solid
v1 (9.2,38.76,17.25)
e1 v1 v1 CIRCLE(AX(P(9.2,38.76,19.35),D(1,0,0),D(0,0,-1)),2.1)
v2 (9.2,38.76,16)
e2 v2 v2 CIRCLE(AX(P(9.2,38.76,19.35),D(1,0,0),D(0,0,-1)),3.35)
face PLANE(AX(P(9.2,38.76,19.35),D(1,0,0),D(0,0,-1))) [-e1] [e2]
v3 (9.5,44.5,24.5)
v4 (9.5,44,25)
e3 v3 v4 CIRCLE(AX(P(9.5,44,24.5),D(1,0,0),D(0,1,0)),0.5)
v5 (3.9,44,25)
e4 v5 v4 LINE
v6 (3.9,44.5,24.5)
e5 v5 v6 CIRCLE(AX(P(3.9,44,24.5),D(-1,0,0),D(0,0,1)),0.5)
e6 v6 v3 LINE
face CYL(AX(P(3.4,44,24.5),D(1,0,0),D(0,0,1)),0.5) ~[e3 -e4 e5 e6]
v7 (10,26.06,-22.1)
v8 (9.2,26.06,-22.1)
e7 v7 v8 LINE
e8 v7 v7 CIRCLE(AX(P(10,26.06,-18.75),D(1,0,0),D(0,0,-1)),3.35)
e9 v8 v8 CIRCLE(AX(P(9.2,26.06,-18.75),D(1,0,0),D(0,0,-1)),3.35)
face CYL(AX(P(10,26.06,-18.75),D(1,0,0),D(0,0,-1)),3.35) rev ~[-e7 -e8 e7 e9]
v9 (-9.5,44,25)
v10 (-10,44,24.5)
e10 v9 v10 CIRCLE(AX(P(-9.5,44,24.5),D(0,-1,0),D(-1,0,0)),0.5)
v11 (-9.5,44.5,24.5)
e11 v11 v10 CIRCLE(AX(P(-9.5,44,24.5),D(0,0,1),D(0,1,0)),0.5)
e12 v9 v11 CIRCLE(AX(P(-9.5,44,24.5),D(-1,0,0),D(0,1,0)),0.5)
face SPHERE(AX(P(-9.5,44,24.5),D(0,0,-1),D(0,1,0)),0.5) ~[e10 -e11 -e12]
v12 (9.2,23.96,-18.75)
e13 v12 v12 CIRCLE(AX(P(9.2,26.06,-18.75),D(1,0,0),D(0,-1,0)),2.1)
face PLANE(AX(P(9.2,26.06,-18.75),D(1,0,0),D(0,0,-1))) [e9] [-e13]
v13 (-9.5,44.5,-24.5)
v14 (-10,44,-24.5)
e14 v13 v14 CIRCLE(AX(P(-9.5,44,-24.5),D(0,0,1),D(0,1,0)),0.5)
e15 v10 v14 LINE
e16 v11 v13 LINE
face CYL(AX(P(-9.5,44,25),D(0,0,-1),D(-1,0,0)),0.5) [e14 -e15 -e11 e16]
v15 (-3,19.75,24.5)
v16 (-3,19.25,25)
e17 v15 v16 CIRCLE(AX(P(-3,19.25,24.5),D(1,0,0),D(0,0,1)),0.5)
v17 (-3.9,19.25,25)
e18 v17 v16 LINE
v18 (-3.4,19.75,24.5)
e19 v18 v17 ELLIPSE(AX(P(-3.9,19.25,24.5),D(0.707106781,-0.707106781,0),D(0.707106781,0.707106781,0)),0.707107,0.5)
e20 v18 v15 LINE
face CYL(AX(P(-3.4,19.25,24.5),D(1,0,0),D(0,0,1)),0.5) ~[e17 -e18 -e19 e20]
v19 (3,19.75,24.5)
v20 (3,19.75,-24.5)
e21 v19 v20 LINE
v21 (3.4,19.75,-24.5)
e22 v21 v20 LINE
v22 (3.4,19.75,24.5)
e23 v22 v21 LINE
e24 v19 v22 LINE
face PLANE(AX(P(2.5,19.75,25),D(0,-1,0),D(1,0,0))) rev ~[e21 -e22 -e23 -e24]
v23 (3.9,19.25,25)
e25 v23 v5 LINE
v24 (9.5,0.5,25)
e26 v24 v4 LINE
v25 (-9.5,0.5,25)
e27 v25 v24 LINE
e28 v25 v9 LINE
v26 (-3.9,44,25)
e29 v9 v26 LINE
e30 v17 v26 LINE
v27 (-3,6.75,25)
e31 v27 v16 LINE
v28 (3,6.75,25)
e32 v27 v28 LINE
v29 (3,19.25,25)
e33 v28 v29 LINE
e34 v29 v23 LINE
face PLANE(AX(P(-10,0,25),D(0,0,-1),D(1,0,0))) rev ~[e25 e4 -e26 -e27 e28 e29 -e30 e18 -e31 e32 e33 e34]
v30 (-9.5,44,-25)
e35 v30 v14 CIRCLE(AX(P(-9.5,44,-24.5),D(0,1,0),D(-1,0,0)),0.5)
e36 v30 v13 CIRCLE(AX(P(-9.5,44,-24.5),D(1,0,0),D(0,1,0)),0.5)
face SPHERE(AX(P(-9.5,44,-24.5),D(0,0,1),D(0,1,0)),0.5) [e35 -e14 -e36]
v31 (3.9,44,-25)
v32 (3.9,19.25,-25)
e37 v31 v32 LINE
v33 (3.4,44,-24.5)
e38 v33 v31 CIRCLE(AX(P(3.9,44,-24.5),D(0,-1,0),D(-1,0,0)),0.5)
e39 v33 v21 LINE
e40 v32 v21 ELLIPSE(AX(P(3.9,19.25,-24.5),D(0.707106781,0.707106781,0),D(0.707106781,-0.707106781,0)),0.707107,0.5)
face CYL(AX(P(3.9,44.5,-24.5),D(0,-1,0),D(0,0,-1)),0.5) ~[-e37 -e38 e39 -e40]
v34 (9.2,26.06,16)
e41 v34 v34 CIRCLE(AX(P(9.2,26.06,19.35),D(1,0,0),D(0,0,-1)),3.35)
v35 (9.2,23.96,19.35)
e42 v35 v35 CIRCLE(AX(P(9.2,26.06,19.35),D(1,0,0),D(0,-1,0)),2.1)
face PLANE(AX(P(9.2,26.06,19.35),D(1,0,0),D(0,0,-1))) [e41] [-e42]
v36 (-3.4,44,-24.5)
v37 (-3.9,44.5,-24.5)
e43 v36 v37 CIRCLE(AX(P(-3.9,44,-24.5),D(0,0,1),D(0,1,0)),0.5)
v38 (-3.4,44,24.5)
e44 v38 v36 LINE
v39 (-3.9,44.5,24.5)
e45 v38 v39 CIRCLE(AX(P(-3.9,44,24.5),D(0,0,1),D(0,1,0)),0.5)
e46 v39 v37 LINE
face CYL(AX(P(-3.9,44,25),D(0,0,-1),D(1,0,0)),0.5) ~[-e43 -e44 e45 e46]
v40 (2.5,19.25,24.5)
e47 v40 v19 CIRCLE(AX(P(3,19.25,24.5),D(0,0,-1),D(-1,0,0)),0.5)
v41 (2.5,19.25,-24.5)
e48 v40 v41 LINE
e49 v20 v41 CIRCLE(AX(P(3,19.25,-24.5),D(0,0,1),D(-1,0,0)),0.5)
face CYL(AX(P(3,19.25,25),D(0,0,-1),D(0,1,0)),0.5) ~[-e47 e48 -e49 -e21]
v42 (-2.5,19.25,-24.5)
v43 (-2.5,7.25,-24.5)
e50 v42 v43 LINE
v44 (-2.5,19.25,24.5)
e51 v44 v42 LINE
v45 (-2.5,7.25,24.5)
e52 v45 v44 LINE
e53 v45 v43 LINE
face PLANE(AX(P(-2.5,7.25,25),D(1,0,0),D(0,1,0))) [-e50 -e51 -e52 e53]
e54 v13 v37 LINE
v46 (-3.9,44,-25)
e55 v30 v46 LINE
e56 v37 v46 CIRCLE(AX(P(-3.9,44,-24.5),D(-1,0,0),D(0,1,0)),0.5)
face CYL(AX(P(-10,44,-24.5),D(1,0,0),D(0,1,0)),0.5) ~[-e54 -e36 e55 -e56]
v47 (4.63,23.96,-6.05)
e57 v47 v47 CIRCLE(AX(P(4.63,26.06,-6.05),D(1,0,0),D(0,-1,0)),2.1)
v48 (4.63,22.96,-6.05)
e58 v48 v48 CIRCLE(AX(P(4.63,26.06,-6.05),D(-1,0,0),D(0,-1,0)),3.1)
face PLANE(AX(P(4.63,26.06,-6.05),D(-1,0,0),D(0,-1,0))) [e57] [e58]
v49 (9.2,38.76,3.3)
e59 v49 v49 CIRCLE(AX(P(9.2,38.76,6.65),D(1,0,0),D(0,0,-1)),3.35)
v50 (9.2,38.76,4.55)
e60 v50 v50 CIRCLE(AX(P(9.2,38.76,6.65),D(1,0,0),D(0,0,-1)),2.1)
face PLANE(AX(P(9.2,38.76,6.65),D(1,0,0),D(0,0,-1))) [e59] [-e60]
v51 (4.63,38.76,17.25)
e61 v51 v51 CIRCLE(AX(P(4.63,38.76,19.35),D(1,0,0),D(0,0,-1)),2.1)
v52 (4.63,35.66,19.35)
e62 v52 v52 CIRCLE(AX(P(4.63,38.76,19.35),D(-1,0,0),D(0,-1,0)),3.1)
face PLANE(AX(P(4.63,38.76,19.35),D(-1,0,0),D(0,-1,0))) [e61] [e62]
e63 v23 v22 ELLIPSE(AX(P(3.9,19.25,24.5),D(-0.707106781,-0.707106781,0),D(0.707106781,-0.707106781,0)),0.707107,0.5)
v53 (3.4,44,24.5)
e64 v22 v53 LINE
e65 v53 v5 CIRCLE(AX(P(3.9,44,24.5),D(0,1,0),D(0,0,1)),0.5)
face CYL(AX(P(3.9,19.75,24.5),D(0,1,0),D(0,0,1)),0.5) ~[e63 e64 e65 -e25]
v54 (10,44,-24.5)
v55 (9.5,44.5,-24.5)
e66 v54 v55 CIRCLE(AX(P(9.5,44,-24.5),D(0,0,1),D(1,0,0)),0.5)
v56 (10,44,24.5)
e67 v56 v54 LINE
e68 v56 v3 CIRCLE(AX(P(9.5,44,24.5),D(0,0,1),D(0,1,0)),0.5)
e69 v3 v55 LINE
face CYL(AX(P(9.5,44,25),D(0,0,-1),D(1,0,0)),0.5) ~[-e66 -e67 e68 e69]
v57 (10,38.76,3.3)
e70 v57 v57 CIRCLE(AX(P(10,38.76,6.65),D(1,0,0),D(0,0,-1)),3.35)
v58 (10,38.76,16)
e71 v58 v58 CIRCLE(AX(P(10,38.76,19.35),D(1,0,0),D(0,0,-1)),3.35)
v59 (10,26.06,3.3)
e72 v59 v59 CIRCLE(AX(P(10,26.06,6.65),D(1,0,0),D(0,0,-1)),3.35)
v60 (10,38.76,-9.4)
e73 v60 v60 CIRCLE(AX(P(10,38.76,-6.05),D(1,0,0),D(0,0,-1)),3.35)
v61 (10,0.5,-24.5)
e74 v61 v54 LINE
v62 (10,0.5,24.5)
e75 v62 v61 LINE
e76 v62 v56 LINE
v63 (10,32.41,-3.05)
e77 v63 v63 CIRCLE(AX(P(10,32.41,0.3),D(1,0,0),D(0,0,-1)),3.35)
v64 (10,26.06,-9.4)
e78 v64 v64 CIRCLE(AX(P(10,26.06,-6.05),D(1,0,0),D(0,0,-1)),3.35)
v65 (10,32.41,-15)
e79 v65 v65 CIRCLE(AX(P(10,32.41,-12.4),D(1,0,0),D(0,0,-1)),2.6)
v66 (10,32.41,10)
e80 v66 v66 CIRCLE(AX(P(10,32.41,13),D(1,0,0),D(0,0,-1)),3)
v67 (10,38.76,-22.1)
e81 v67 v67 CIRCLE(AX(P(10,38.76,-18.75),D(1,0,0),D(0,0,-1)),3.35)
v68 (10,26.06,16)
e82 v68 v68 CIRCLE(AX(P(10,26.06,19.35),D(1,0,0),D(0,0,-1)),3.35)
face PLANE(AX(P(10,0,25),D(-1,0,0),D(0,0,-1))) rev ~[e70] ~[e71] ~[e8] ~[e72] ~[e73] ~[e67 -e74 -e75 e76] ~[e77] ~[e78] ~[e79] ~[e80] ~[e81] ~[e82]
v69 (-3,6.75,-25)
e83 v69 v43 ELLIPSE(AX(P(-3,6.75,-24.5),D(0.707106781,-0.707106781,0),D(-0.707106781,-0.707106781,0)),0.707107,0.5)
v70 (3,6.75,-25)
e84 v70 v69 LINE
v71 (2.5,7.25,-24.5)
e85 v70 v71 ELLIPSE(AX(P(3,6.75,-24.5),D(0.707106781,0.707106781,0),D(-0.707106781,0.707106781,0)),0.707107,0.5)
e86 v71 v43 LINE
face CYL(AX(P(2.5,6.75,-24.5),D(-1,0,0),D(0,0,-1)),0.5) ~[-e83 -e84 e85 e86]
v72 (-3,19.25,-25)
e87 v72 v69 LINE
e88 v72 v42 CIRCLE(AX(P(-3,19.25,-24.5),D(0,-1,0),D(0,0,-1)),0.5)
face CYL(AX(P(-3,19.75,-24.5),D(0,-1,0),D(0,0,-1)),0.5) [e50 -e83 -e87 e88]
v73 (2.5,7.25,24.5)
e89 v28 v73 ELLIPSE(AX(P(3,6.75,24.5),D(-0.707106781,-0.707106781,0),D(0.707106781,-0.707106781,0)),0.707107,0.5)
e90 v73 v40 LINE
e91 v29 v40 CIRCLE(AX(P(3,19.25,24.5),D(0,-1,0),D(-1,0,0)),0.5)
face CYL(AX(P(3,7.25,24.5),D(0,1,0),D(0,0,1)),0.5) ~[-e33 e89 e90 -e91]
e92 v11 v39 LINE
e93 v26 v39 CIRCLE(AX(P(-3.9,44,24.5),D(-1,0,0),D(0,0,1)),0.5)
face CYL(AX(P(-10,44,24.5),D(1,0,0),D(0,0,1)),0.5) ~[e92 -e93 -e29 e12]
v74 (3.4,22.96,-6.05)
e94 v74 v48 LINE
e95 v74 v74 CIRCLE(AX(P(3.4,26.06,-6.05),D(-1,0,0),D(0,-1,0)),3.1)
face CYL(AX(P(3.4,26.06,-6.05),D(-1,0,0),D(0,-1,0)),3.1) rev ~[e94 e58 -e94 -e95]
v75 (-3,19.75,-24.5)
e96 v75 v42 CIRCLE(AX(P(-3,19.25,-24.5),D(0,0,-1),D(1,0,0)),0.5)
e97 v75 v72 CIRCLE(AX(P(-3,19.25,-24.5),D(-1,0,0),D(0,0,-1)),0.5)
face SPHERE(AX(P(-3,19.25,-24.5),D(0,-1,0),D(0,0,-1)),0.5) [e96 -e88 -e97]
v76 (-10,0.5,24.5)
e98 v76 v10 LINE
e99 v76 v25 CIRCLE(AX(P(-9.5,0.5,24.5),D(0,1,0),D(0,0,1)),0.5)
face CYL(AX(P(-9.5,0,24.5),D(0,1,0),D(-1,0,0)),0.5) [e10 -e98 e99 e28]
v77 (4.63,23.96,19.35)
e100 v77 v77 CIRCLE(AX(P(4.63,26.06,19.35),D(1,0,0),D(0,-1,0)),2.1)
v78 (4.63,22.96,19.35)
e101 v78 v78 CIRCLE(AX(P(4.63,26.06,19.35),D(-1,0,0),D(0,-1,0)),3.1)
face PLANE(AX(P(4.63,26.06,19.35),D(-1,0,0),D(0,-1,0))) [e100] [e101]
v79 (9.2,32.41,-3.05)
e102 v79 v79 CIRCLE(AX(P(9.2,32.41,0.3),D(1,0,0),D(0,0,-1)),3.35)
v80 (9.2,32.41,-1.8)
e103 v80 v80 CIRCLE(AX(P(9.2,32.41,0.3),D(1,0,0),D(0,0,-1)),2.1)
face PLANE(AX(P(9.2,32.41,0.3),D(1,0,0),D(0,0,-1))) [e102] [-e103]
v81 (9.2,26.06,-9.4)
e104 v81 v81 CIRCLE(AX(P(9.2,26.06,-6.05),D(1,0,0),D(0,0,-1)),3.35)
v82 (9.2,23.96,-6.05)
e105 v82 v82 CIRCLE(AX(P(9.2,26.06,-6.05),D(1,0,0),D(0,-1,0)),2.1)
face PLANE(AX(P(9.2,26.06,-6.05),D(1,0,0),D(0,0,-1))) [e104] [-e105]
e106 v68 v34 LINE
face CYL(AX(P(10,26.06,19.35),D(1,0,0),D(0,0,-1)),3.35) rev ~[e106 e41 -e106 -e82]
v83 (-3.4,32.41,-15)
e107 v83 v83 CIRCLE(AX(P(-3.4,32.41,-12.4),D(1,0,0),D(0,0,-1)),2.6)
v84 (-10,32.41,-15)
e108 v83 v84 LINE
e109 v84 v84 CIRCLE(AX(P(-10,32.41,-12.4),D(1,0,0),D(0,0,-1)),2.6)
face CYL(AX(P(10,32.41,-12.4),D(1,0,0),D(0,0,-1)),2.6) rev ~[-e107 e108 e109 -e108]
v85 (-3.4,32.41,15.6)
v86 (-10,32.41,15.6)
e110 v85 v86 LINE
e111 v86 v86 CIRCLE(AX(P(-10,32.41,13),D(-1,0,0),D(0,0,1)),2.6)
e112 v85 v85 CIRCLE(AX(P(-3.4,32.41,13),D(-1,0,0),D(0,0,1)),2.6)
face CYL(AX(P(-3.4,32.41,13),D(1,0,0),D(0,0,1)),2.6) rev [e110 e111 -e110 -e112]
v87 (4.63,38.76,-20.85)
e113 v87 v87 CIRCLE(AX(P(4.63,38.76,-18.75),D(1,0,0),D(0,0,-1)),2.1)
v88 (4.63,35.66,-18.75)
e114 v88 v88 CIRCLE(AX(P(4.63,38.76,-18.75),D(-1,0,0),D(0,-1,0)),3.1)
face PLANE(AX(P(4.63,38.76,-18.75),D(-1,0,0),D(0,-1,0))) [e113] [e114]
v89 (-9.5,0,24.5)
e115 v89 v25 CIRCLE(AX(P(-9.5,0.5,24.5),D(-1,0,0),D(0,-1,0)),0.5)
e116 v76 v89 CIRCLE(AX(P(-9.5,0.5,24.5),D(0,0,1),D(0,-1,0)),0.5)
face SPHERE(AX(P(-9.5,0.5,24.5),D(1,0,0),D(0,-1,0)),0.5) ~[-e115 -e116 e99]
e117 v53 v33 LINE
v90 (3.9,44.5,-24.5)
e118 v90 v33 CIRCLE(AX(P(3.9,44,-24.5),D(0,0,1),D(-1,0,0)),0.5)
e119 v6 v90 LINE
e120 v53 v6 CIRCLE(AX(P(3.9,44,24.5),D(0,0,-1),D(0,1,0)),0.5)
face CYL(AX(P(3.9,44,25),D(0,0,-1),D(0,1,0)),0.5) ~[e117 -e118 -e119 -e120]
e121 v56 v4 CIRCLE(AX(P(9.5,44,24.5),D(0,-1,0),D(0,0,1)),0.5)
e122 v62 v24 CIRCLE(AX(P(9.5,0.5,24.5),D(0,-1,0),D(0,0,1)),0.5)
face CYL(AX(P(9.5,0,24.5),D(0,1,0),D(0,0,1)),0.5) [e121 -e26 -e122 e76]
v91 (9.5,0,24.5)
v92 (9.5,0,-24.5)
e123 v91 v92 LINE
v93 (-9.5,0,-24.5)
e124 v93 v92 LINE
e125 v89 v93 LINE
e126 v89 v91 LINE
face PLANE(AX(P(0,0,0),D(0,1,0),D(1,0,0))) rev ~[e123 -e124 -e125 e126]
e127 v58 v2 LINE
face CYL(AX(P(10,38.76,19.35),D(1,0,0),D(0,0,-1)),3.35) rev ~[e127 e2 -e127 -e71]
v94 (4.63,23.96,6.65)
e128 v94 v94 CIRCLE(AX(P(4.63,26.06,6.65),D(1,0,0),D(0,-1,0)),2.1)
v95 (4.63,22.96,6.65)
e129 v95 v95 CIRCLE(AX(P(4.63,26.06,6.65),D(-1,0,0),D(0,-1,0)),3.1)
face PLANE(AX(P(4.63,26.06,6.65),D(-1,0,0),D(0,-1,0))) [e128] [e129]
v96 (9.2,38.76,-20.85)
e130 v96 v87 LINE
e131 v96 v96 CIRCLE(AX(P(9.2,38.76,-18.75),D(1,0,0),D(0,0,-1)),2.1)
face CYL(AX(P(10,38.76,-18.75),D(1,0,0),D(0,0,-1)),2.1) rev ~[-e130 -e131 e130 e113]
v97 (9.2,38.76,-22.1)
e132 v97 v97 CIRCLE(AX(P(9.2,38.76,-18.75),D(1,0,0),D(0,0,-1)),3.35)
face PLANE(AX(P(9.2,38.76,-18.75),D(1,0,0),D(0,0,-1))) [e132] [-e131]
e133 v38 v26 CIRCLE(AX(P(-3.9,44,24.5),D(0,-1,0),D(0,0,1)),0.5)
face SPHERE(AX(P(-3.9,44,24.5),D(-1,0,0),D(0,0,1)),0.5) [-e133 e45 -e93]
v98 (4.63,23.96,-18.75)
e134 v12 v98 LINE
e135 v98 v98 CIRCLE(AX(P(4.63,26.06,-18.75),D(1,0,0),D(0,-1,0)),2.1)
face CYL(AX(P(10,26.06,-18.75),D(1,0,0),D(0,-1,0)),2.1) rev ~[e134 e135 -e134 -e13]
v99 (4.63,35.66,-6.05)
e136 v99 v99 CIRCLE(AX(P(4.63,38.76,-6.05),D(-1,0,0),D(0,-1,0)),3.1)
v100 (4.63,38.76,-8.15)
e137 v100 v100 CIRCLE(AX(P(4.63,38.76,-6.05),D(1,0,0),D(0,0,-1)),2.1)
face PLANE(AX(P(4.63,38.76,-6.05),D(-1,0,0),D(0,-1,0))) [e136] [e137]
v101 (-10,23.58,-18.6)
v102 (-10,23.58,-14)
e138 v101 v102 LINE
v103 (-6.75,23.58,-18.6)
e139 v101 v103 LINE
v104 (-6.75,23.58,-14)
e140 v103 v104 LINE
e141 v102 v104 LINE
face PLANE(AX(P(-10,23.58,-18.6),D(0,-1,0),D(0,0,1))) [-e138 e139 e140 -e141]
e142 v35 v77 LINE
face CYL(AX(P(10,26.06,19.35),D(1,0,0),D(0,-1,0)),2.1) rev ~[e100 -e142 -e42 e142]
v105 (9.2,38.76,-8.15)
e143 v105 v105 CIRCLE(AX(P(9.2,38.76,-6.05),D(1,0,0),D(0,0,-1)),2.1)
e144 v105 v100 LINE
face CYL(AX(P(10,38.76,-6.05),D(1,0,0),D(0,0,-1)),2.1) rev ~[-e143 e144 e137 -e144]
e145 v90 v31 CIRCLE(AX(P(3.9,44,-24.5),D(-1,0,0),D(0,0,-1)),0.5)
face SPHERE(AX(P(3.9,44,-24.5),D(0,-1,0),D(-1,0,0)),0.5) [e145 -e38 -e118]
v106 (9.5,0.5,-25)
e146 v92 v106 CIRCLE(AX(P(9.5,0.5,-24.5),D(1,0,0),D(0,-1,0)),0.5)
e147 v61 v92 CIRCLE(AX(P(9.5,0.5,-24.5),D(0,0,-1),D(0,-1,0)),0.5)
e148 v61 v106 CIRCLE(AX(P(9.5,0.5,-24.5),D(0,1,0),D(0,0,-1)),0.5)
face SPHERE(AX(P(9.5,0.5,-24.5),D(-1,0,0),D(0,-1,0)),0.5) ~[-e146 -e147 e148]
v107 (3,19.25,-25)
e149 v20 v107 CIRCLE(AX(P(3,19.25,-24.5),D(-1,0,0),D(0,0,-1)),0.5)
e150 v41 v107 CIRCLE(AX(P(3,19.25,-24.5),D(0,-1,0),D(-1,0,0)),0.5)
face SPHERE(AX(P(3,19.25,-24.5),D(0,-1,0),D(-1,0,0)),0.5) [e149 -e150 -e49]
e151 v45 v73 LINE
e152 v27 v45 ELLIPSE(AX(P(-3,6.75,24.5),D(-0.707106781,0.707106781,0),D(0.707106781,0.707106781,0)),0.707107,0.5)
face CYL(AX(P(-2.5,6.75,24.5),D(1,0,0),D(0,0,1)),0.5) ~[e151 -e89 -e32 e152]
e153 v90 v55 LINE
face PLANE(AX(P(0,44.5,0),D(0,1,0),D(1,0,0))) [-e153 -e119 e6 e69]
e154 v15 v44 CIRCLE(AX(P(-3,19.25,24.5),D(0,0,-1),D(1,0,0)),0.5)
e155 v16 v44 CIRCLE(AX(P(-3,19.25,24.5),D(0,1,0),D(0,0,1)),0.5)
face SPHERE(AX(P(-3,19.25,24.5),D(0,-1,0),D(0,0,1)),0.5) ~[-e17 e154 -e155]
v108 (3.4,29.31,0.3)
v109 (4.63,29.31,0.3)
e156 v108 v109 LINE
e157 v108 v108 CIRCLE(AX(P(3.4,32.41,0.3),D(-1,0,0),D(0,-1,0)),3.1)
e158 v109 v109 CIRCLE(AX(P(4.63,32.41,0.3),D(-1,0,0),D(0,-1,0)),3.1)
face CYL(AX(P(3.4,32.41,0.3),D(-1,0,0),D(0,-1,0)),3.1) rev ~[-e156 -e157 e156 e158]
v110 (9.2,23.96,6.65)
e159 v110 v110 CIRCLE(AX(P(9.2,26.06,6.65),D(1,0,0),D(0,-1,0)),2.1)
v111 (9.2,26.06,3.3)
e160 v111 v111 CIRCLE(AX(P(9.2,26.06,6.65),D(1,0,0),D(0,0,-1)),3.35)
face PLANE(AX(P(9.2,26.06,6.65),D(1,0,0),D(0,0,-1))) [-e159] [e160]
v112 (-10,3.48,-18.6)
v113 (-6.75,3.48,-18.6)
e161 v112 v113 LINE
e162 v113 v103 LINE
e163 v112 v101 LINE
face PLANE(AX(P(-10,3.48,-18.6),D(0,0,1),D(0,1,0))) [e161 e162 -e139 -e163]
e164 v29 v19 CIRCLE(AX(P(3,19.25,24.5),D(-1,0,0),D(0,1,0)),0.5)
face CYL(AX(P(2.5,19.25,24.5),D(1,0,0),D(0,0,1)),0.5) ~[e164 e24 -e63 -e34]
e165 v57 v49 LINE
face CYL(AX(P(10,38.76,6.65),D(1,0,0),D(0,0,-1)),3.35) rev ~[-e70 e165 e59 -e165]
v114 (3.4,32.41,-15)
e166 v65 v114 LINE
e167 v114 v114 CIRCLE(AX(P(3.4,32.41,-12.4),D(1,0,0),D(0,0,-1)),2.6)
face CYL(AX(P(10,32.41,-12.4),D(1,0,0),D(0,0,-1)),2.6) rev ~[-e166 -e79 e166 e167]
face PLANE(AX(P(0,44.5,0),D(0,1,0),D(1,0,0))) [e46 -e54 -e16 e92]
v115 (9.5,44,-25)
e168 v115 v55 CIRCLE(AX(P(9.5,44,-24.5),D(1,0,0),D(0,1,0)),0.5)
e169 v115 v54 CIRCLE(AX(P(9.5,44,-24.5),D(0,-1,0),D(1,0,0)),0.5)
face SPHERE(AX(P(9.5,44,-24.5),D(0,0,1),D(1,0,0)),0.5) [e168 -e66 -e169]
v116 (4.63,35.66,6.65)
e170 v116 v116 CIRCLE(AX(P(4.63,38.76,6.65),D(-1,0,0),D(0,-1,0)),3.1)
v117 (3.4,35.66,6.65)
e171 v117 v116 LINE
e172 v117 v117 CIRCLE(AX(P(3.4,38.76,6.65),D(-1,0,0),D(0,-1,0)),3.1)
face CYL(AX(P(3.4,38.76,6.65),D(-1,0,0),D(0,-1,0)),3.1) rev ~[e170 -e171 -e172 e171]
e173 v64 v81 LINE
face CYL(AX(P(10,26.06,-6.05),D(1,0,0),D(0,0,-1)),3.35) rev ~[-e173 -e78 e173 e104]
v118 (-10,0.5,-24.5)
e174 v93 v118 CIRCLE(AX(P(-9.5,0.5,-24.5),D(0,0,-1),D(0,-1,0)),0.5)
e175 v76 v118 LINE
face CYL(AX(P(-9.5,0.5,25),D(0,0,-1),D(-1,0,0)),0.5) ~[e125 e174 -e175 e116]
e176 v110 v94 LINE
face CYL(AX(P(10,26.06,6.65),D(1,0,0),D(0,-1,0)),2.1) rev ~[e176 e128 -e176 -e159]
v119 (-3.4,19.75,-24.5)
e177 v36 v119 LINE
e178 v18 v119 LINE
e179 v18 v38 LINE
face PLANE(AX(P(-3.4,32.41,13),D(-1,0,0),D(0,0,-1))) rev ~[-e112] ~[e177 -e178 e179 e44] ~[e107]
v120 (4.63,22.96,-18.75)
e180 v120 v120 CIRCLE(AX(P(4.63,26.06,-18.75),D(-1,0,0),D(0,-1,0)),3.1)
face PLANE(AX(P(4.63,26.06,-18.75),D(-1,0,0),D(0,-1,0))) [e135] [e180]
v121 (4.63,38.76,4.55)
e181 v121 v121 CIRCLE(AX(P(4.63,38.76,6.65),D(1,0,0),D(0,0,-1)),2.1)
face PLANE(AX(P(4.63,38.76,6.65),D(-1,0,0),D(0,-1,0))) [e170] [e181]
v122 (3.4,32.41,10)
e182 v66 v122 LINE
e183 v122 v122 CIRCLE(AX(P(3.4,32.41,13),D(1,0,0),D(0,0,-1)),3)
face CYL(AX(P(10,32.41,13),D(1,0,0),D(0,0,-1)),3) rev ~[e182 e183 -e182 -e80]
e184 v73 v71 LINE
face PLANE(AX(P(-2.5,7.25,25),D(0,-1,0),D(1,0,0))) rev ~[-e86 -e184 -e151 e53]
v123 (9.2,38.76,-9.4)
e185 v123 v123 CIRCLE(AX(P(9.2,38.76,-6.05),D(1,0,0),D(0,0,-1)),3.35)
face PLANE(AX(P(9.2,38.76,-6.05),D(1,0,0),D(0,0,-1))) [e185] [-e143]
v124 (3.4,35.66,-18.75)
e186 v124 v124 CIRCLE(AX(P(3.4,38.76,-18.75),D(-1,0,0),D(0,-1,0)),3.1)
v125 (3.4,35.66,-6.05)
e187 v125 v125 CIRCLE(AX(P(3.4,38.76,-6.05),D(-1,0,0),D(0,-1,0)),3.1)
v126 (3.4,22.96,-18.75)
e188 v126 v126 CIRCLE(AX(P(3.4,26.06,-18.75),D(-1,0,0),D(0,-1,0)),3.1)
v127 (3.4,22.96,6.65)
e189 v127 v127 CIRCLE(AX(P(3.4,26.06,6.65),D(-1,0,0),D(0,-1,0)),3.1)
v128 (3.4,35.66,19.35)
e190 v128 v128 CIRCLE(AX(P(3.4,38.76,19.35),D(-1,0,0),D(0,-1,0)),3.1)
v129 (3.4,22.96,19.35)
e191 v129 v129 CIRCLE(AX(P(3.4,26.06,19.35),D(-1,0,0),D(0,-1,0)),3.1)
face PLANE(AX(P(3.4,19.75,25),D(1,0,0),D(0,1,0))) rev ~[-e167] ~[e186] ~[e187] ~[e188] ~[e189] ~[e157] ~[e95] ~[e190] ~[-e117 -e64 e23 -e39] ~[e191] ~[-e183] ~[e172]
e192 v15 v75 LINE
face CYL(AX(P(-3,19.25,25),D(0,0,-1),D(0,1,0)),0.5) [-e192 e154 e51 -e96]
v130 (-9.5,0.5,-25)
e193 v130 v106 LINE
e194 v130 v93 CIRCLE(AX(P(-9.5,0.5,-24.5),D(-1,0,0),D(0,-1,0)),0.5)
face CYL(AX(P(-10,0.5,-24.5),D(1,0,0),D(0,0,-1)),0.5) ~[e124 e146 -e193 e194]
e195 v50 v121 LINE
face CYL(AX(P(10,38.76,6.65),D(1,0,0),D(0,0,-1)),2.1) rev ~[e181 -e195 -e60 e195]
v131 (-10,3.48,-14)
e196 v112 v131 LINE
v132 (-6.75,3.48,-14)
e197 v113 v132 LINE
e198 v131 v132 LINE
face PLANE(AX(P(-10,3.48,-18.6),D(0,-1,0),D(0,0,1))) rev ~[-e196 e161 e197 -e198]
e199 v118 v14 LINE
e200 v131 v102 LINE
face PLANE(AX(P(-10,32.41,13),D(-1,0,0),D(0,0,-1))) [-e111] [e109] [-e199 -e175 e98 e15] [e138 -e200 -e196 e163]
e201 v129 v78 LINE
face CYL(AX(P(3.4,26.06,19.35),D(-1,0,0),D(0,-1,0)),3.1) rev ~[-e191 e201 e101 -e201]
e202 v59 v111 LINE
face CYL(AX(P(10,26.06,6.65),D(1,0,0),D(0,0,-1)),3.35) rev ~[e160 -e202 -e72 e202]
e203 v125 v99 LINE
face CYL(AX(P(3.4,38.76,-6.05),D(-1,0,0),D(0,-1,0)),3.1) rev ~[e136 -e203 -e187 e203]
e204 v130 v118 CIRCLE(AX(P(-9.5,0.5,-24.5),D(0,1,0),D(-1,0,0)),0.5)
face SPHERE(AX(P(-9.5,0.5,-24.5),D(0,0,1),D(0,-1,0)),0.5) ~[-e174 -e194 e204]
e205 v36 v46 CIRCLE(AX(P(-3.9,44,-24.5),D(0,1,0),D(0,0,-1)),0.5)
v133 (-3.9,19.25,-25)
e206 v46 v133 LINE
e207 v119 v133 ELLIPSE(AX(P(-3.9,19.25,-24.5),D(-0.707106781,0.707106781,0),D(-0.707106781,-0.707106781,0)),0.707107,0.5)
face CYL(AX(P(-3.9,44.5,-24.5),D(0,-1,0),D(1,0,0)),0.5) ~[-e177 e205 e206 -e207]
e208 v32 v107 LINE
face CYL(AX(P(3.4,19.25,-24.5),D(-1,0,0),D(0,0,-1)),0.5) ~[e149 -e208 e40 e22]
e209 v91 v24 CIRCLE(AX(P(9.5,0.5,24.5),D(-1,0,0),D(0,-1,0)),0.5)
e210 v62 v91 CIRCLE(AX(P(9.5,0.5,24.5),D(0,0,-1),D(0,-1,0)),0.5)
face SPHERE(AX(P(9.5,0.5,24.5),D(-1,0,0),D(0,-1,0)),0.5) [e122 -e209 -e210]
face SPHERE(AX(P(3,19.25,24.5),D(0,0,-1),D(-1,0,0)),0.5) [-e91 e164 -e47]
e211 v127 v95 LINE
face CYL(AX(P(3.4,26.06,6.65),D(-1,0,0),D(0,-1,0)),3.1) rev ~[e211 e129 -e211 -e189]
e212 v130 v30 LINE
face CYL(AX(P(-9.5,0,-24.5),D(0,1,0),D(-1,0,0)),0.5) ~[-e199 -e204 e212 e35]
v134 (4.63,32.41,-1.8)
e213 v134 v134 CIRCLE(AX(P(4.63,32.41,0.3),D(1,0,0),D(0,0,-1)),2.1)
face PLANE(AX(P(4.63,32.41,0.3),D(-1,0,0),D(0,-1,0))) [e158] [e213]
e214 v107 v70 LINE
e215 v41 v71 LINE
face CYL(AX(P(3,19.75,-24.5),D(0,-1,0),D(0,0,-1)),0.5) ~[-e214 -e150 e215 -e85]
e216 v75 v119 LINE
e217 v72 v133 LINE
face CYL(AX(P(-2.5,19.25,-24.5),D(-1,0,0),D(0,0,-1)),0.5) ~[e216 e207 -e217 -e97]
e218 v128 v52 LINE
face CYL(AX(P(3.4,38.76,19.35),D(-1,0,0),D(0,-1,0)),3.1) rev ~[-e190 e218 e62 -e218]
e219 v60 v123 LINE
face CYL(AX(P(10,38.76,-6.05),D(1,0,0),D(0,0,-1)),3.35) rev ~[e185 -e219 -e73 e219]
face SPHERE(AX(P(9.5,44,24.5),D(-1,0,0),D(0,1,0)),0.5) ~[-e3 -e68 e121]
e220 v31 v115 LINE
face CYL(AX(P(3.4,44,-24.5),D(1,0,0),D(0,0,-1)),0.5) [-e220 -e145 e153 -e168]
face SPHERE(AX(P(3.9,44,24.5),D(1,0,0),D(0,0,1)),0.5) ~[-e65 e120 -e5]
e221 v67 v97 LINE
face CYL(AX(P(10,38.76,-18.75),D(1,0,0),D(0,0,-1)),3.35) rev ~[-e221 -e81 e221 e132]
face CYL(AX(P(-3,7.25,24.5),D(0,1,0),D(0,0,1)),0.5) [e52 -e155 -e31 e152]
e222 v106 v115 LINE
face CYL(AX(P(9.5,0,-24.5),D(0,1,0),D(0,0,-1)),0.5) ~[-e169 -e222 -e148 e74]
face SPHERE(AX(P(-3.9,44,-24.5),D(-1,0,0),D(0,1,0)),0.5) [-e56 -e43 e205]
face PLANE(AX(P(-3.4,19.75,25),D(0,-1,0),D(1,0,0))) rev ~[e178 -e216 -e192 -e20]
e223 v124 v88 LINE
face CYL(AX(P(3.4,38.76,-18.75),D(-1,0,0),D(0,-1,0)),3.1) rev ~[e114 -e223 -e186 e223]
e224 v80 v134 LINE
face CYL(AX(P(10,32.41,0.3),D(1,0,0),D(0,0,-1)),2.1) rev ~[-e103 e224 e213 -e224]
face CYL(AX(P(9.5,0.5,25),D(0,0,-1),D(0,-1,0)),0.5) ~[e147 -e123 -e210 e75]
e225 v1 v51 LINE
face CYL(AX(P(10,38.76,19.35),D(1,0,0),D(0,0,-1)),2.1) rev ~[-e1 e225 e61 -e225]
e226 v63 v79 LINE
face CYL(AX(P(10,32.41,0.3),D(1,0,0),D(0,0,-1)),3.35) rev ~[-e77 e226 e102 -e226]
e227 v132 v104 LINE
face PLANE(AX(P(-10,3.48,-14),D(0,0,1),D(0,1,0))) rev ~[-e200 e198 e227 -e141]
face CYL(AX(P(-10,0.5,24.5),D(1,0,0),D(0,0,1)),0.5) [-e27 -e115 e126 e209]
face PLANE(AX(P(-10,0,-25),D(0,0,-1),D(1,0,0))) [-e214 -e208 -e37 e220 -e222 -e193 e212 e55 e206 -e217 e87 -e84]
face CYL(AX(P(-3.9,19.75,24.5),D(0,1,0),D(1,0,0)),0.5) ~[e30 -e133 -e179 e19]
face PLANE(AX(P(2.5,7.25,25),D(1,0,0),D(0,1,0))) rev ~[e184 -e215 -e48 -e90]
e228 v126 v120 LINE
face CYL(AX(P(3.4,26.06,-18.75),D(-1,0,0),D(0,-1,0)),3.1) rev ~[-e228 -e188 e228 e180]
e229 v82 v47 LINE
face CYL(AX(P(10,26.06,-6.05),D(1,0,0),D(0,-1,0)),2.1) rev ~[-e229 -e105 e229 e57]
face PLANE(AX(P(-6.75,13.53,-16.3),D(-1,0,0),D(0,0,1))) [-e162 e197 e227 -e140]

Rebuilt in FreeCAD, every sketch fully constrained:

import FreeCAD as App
import Part
import Sketcher
Q = App.Units.Quantity


def edges_at(feature, points):
    """Names of the edges that pass closest to the given points."""
    edges = feature.Shape.Edges
    near = lambda p: min(range(len(edges)), key=lambda i: edges[i].distToShape(Part.Vertex(*p))[0])
    return sorted({f"Edge{near(p) + 1}" for p in points})


def add_polygon(sketch, points):
    """Adds a closed chain of lines whose ends are joined by coincident constraints."""
    first, n = sketch.GeometryCount, len(points)
    for a, b in zip(points, points[1:] + points[:1]):
        sketch.addGeometry(Part.LineSegment(App.Vector(*a, 0), App.Vector(*b, 0)), False)
    for i in range(n):
        sketch.addConstraint(Sketcher.Constraint("Coincident", first + i, 2, first + (i + 1) % n, 1))

doc = App.newDocument("Part")
body = doc.addObject("PartDesign::Body", "Body")

# Sketch on XZ plane
sketch1 = body.newObject("Sketcher::SketchObject", "Sketch")
sketch1.AttachmentSupport = (doc.getObject("XZ_Plane"), [""])
sketch1.MapMode = "FlatFace"
add_polygon(sketch1, [(-10, -25), (-10, 25), (10, 25), (10, -25)])  # lines 0-3
sketch1.addConstraint(Sketcher.Constraint("Vertical", 0))
sketch1.addConstraint(Sketcher.Constraint("Horizontal", 1))
sketch1.addConstraint(Sketcher.Constraint("Vertical", 2))
sketch1.addConstraint(Sketcher.Constraint("Horizontal", 3))
sketch1.addConstraint(Sketcher.Constraint("Symmetric", 0, 2, 2, 2, -1, 1))
sketch1.addConstraint(Sketcher.Constraint("DistanceX", 1, 1, 1, 2, Q("20 mm")))
sketch1.addConstraint(Sketcher.Constraint("DistanceY", 0, 1, 0, 2, Q("50 mm")))
pad1 = body.newObject("PartDesign::Pad", "Pad")
pad1.Profile = sketch1
pad1.Length = 44.5
pad1.Reversed = True

# Sketch on XY plane
sketch2 = body.newObject("Sketcher::SketchObject", "Sketch001")
sketch2.AttachmentSupport = (doc.getObject("XY_Plane"), [""])
sketch2.MapMode = "FlatFace"
sketch2.AttachmentOffset = App.Placement(App.Vector(0, 0, 25), App.Rotation())
add_polygon(sketch2, [(-3.4, 44.5), (-3.4, 19.8), (-2.5, 19.8), (-2.5, 7.2), (2.5, 7.2), (2.5, 19.8), (3.4, 19.8), (3.4, 44.5)])  # lines 0-7
sketch2.addConstraint(Sketcher.Constraint("Vertical", 0))
sketch2.addConstraint(Sketcher.Constraint("Horizontal", 1))
sketch2.addConstraint(Sketcher.Constraint("Vertical", 2))
sketch2.addConstraint(Sketcher.Constraint("Horizontal", 3))
sketch2.addConstraint(Sketcher.Constraint("Vertical", 4))
sketch2.addConstraint(Sketcher.Constraint("Horizontal", 5))
sketch2.addConstraint(Sketcher.Constraint("Vertical", 6))
sketch2.addConstraint(Sketcher.Constraint("Horizontal", 7))
sketch2.addConstraint(Sketcher.Constraint("Symmetric", 1, 2, 4, 2, -2))
sketch2.addConstraint(Sketcher.Constraint("Equal", 1, 5))
sketch2.addConstraint(Sketcher.Constraint("DistanceX", 3, 1, 3, 2, Q("5 mm")))
sketch2.addConstraint(Sketcher.Constraint("DistanceX", 1, 1, 1, 2, Q("0.9 mm")))
sketch2.addConstraint(Sketcher.Constraint("DistanceY", 2, 2, 2, 1, Q("12.5 mm")))
sketch2.addConstraint(Sketcher.Constraint("DistanceY", 0, 2, 0, 1, Q("24.75 mm")))
sketch2.addConstraint(Sketcher.Constraint("DistanceY", -1, 1, 6, 2, Q("44.5 mm")))
pocket1 = body.newObject("PartDesign::Pocket", "Pocket")
pocket1.Profile = sketch2
pocket1.Type = "ThroughAll"

# Sketch on YZ plane
sketch3 = body.newObject("Sketcher::SketchObject", "Sketch002")
sketch3.AttachmentSupport = (doc.getObject("YZ_Plane"), [""])
sketch3.MapMode = "FlatFace"
sketch3.AttachmentOffset = App.Placement(App.Vector(0, 0, 10), App.Rotation())
sketch3.addGeometry(Part.Circle(App.Vector(32.4, 13, 0), App.Vector(0, 0, 1), 3), False)
sketch3.addGeometry(Part.Circle(App.Vector(32.4, -12.4, 0), App.Vector(0, 0, 1), 2.6), False)
sketch3.addConstraint(Sketcher.Constraint("Vertical", 0, 3, 1, 3))
sketch3.addConstraint(Sketcher.Constraint("Diameter", 0, Q("6 mm")))
sketch3.addConstraint(Sketcher.Constraint("Diameter", 1, Q("5.2 mm")))
sketch3.addConstraint(Sketcher.Constraint("DistanceY", -1, 1, 0, 3, Q("13 mm")))
sketch3.addConstraint(Sketcher.Constraint("DistanceY", 1, 3, -1, 1, Q("12.4 mm")))
sketch3.addConstraint(Sketcher.Constraint("DistanceX", -1, 1, 0, 3, Q("32.41 mm")))
pocket2 = body.newObject("PartDesign::Pocket", "Pocket001")
pocket2.Profile = sketch3
pocket2.Type = "ThroughAll"

# Sketch on YZ plane
sketch4 = body.newObject("Sketcher::SketchObject", "Sketch003")
sketch4.AttachmentSupport = (doc.getObject("YZ_Plane"), [""])
sketch4.MapMode = "FlatFace"
sketch4.AttachmentOffset = App.Placement(App.Vector(0, 0, 10), App.Rotation())
sketch4.addGeometry(Part.Circle(App.Vector(32.4, 0.3, 0), App.Vector(0, 0, 1), 2.1), False)
sketch4.addConstraint(Sketcher.Constraint("Diameter", 0, Q("4.2 mm")))
sketch4.addConstraint(Sketcher.Constraint("DistanceY", -1, 1, 0, 3, Q("0.3 mm")))
sketch4.addConstraint(Sketcher.Constraint("DistanceX", -1, 1, 0, 3, Q("32.41 mm")))
pocket3 = body.newObject("PartDesign::Pocket", "Pocket002")
pocket3.Profile = sketch4
pocket3.Type = "UpToFirst"

# Sketch on YZ plane
sketch5 = body.newObject("Sketcher::SketchObject", "Sketch004")
sketch5.AttachmentSupport = (doc.getObject("YZ_Plane"), [""])
sketch5.MapMode = "FlatFace"
sketch5.AttachmentOffset = App.Placement(App.Vector(0, 0, 10), App.Rotation())
sketch5.addGeometry(Part.Circle(App.Vector(38.8, 19.4, 0), App.Vector(0, 0, 1), 2.1), False)
sketch5.addConstraint(Sketcher.Constraint("Diameter", 0, Q("4.2 mm")))
sketch5.addConstraint(Sketcher.Constraint("DistanceX", -1, 1, 0, 3, Q("38.76 mm")))
sketch5.addConstraint(Sketcher.Constraint("DistanceY", -1, 1, 0, 3, Q("19.35 mm")))
pocket4 = body.newObject("PartDesign::Pocket", "Pocket003")
pocket4.Profile = sketch5
pocket4.Type = "UpToFirst"

# Sketch on YZ plane
sketch6 = body.newObject("Sketcher::SketchObject", "Sketch005")
sketch6.AttachmentSupport = (doc.getObject("YZ_Plane"), [""])
sketch6.MapMode = "FlatFace"
sketch6.AttachmentOffset = App.Placement(App.Vector(0, 0, 10), App.Rotation())
sketch6.addGeometry(Part.Circle(App.Vector(38.8, 6.7, 0), App.Vector(0, 0, 1), 2.1), False)
sketch6.addConstraint(Sketcher.Constraint("Diameter", 0, Q("4.2 mm")))
sketch6.addConstraint(Sketcher.Constraint("DistanceX", -1, 1, 0, 3, Q("38.76 mm")))
sketch6.addConstraint(Sketcher.Constraint("DistanceY", -1, 1, 0, 3, Q("6.65 mm")))
pocket5 = body.newObject("PartDesign::Pocket", "Pocket004")
pocket5.Profile = sketch6
pocket5.Type = "UpToFirst"

# Sketch on YZ plane
sketch7 = body.newObject("Sketcher::SketchObject", "Sketch006")
sketch7.AttachmentSupport = (doc.getObject("YZ_Plane"), [""])
sketch7.MapMode = "FlatFace"
sketch7.AttachmentOffset = App.Placement(App.Vector(0, 0, 10), App.Rotation())
sketch7.addGeometry(Part.Circle(App.Vector(38.8, -6, 0), App.Vector(0, 0, 1), 2.1), False)
sketch7.addConstraint(Sketcher.Constraint("Diameter", 0, Q("4.2 mm")))
sketch7.addConstraint(Sketcher.Constraint("DistanceX", -1, 1, 0, 3, Q("38.76 mm")))
sketch7.addConstraint(Sketcher.Constraint("DistanceY", 0, 3, -1, 1, Q("6.05 mm")))
pocket6 = body.newObject("PartDesign::Pocket", "Pocket005")
pocket6.Profile = sketch7
pocket6.Type = "UpToFirst"

# Sketch on YZ plane
sketch8 = body.newObject("Sketcher::SketchObject", "Sketch007")
sketch8.AttachmentSupport = (doc.getObject("YZ_Plane"), [""])
sketch8.MapMode = "FlatFace"
sketch8.AttachmentOffset = App.Placement(App.Vector(0, 0, 10), App.Rotation())
sketch8.addGeometry(Part.Circle(App.Vector(38.8, -18.8, 0), App.Vector(0, 0, 1), 2.1), False)
sketch8.addConstraint(Sketcher.Constraint("Diameter", 0, Q("4.2 mm")))
sketch8.addConstraint(Sketcher.Constraint("DistanceX", -1, 1, 0, 3, Q("38.76 mm")))
sketch8.addConstraint(Sketcher.Constraint("DistanceY", 0, 3, -1, 1, Q("18.75 mm")))
pocket7 = body.newObject("PartDesign::Pocket", "Pocket006")
pocket7.Profile = sketch8
pocket7.Type = "UpToFirst"

# Sketch on YZ plane
sketch9 = body.newObject("Sketcher::SketchObject", "Sketch008")
sketch9.AttachmentSupport = (doc.getObject("YZ_Plane"), [""])
sketch9.MapMode = "FlatFace"
sketch9.AttachmentOffset = App.Placement(App.Vector(0, 0, 10), App.Rotation())
sketch9.addGeometry(Part.Circle(App.Vector(26.1, -18.8, 0), App.Vector(0, 0, 1), 2.1), False)
sketch9.addConstraint(Sketcher.Constraint("Diameter", 0, Q("4.2 mm")))
sketch9.addConstraint(Sketcher.Constraint("DistanceX", -1, 1, 0, 3, Q("26.06 mm")))
sketch9.addConstraint(Sketcher.Constraint("DistanceY", 0, 3, -1, 1, Q("18.75 mm")))
pocket8 = body.newObject("PartDesign::Pocket", "Pocket007")
pocket8.Profile = sketch9
pocket8.Type = "UpToFirst"

# Sketch on YZ plane
sketch10 = body.newObject("Sketcher::SketchObject", "Sketch009")
sketch10.AttachmentSupport = (doc.getObject("YZ_Plane"), [""])
sketch10.MapMode = "FlatFace"
sketch10.AttachmentOffset = App.Placement(App.Vector(0, 0, 10), App.Rotation())
sketch10.addGeometry(Part.Circle(App.Vector(26.1, -6, 0), App.Vector(0, 0, 1), 2.1), False)
sketch10.addConstraint(Sketcher.Constraint("Diameter", 0, Q("4.2 mm")))
sketch10.addConstraint(Sketcher.Constraint("DistanceX", -1, 1, 0, 3, Q("26.06 mm")))
sketch10.addConstraint(Sketcher.Constraint("DistanceY", 0, 3, -1, 1, Q("6.05 mm")))
pocket9 = body.newObject("PartDesign::Pocket", "Pocket008")
pocket9.Profile = sketch10
pocket9.Type = "UpToFirst"

# Sketch on YZ plane
sketch11 = body.newObject("Sketcher::SketchObject", "Sketch010")
sketch11.AttachmentSupport = (doc.getObject("YZ_Plane"), [""])
sketch11.MapMode = "FlatFace"
sketch11.AttachmentOffset = App.Placement(App.Vector(0, 0, 10), App.Rotation())
sketch11.addGeometry(Part.Circle(App.Vector(26.1, 6.7, 0), App.Vector(0, 0, 1), 2.1), False)
sketch11.addConstraint(Sketcher.Constraint("Diameter", 0, Q("4.2 mm")))
sketch11.addConstraint(Sketcher.Constraint("DistanceX", -1, 1, 0, 3, Q("26.06 mm")))
sketch11.addConstraint(Sketcher.Constraint("DistanceY", -1, 1, 0, 3, Q("6.65 mm")))
pocket10 = body.newObject("PartDesign::Pocket", "Pocket009")
pocket10.Profile = sketch11
pocket10.Type = "UpToFirst"

# Sketch on YZ plane
sketch12 = body.newObject("Sketcher::SketchObject", "Sketch011")
sketch12.AttachmentSupport = (doc.getObject("YZ_Plane"), [""])
sketch12.MapMode = "FlatFace"
sketch12.AttachmentOffset = App.Placement(App.Vector(0, 0, 10), App.Rotation())
sketch12.addGeometry(Part.Circle(App.Vector(26.1, 19.4, 0), App.Vector(0, 0, 1), 2.1), False)
sketch12.addConstraint(Sketcher.Constraint("Diameter", 0, Q("4.2 mm")))
sketch12.addConstraint(Sketcher.Constraint("DistanceX", -1, 1, 0, 3, Q("26.06 mm")))
sketch12.addConstraint(Sketcher.Constraint("DistanceY", -1, 1, 0, 3, Q("19.35 mm")))
pocket11 = body.newObject("PartDesign::Pocket", "Pocket010")
pocket11.Profile = sketch12
pocket11.Type = "UpToFirst"

# Sketch on YZ plane
sketch13 = body.newObject("Sketcher::SketchObject", "Sketch012")
sketch13.AttachmentSupport = (doc.getObject("YZ_Plane"), [""])
sketch13.MapMode = "FlatFace"
sketch13.AttachmentOffset = App.Placement(App.Vector(0, 0, -3.4), App.Rotation())
sketch13.addGeometry(Part.Circle(App.Vector(32.4, 13, 0), App.Vector(0, 0, 1), 3), False)
sketch13.addGeometry(Part.Circle(App.Vector(32.4, 13, 0), App.Vector(0, 0, 1), 2.6), False)
sketch13.addConstraint(Sketcher.Constraint("Coincident", 1, 3, 0, 3))
sketch13.addConstraint(Sketcher.Constraint("Diameter", 0, Q("6 mm")))
sketch13.addConstraint(Sketcher.Constraint("Diameter", 1, Q("5.2 mm")))
sketch13.addConstraint(Sketcher.Constraint("DistanceY", -1, 1, 0, 3, Q("13 mm")))
sketch13.addConstraint(Sketcher.Constraint("DistanceX", -1, 1, 0, 3, Q("32.41 mm")))
pad2 = body.newObject("PartDesign::Pad", "Pad001")
pad2.Profile = sketch13
pad2.Length = 6.6
pad2.Reversed = True

# Sketch on YZ plane
sketch14 = body.newObject("Sketcher::SketchObject", "Sketch013")
sketch14.AttachmentSupport = (doc.getObject("YZ_Plane"), [""])
sketch14.MapMode = "FlatFace"
sketch14.AttachmentOffset = App.Placement(App.Vector(0, 0, 3.4), App.Rotation())
sketch14.addGeometry(Part.Circle(App.Vector(26.1, -18.8, 0), App.Vector(0, 0, 1), 3.1), False)
sketch14.addGeometry(Part.Circle(App.Vector(38.8, -18.8, 0), App.Vector(0, 0, 1), 3.1), False)
sketch14.addGeometry(Part.Circle(App.Vector(38.8, -6, 0), App.Vector(0, 0, 1), 3.1), False)
sketch14.addGeometry(Part.Circle(App.Vector(38.8, 6.7, 0), App.Vector(0, 0, 1), 3.1), False)
sketch14.addGeometry(Part.Circle(App.Vector(32.4, 0.3, 0), App.Vector(0, 0, 1), 3.1), False)
sketch14.addGeometry(Part.Circle(App.Vector(26.1, -6, 0), App.Vector(0, 0, 1), 3.1), False)
sketch14.addGeometry(Part.Circle(App.Vector(26.1, 6.7, 0), App.Vector(0, 0, 1), 3.1), False)
sketch14.addGeometry(Part.Circle(App.Vector(26.1, 19.4, 0), App.Vector(0, 0, 1), 3.1), False)
sketch14.addGeometry(Part.Circle(App.Vector(38.8, 19.4, 0), App.Vector(0, 0, 1), 3.1), False)
sketch14.addConstraint(Sketcher.Constraint("Equal", 0, 1))
sketch14.addConstraint(Sketcher.Constraint("Equal", 1, 2))
sketch14.addConstraint(Sketcher.Constraint("Equal", 2, 3))
sketch14.addConstraint(Sketcher.Constraint("Equal", 3, 4))
sketch14.addConstraint(Sketcher.Constraint("Equal", 4, 5))
sketch14.addConstraint(Sketcher.Constraint("Equal", 5, 6))
sketch14.addConstraint(Sketcher.Constraint("Equal", 6, 7))
sketch14.addConstraint(Sketcher.Constraint("Equal", 7, 8))
sketch14.addConstraint(Sketcher.Constraint("Horizontal", 0, 3, 1, 3))
sketch14.addConstraint(Sketcher.Constraint("Horizontal", 2, 3, 5, 3))
sketch14.addConstraint(Sketcher.Constraint("Horizontal", 3, 3, 6, 3))
sketch14.addConstraint(Sketcher.Constraint("Horizontal", 7, 3, 8, 3))
sketch14.addConstraint(Sketcher.Constraint("Vertical", 1, 3, 2, 3))
sketch14.addConstraint(Sketcher.Constraint("Vertical", 2, 3, 3, 3))
sketch14.addConstraint(Sketcher.Constraint("Vertical", 0, 3, 5, 3))
sketch14.addConstraint(Sketcher.Constraint("Vertical", 5, 3, 6, 3))
sketch14.addConstraint(Sketcher.Constraint("Vertical", 6, 3, 7, 3))
sketch14.addConstraint(Sketcher.Constraint("Vertical", 3, 3, 8, 3))
sketch14.addConstraint(Sketcher.Constraint("Diameter", 0, Q("6.2 mm")))
sketch14.addConstraint(Sketcher.Constraint("DistanceY", -1, 1, 4, 3, Q("0.3 mm")))
sketch14.addConstraint(Sketcher.Constraint("DistanceX", 0, 3, 1, 3, Q("12.7 mm")))
sketch14.addConstraint(Sketcher.Constraint("DistanceY", 1, 3, 2, 3, Q("12.7 mm")))
sketch14.addConstraint(Sketcher.Constraint("DistanceY", 2, 3, 3, 3, Q("12.7 mm")))
sketch14.addConstraint(Sketcher.Constraint("DistanceY", 6, 3, 7, 3, Q("12.7 mm")))
sketch14.addConstraint(Sketcher.Constraint("DistanceX", -1, 1, 0, 3, Q("26.06 mm")))
sketch14.addConstraint(Sketcher.Constraint("DistanceY", 0, 3, -1, 1, Q("18.75 mm")))
sketch14.addConstraint(Sketcher.Constraint("DistanceX", -1, 1, 4, 3, Q("32.41 mm")))
pocket12 = body.newObject("PartDesign::Pocket", "Pocket011")
pocket12.Profile = sketch14
pocket12.Length = 1.23
pocket12.Reversed = True

# Sketch on YZ plane
sketch15 = body.newObject("Sketcher::SketchObject", "Sketch014")
sketch15.AttachmentSupport = (doc.getObject("YZ_Plane"), [""])
sketch15.MapMode = "FlatFace"
sketch15.AttachmentOffset = App.Placement(App.Vector(0, 0, -10), App.Rotation())
add_polygon(sketch15, [(23.6, -18.6), (3.5, -18.6), (3.5, -14), (23.6, -14)])  # lines 0-3
sketch15.addConstraint(Sketcher.Constraint("Horizontal", 0))
sketch15.addConstraint(Sketcher.Constraint("Vertical", 1))
sketch15.addConstraint(Sketcher.Constraint("Horizontal", 2))
sketch15.addConstraint(Sketcher.Constraint("Vertical", 3))
sketch15.addConstraint(Sketcher.Constraint("DistanceX", 0, 2, 0, 1, Q("20.1 mm")))
sketch15.addConstraint(Sketcher.Constraint("DistanceY", 1, 1, 1, 2, Q("4.6 mm")))
sketch15.addConstraint(Sketcher.Constraint("DistanceY", 1, 2, -1, 1, Q("14 mm")))
sketch15.addConstraint(Sketcher.Constraint("DistanceX", -1, 1, 0, 2, Q("3.48 mm")))
pocket13 = body.newObject("PartDesign::Pocket", "Pocket012")
pocket13.Profile = sketch15
pocket13.Length = 3.25
pocket13.Reversed = True
doc.recompute()

fillet = body.newObject("PartDesign::Fillet", "Fillet")
fillet.Base = (pocket13, edges_at(pocket13, [
    (-10, 44.5, 0),
    (-6.7, 44.5, -25),
    (6.7, 44.5, 25),
    (-6.7, 44.5, 25),
    (0, 7.25, -25),
    (-2.5, 13.5, 25),
    (2.5, 13.5, -25),
    (2.5, 19.75, 0),
    (-2.5, 13.5, -25),
    (3.4, 32.125, -25),
    (0, 7.25, 25),
    (2.5, 13.5, 25),
    (2.95, 19.75, 25),
    (-3.4, 32.125, 25),
    (-2.95, 19.75, 25),
    (-3.4, 44.5, 0),
    (3.4, 32.125, 25),
    (3.4, 44.5, 0),
    (-3.4, 32.125, -25),
    (-2.95, 19.75, -25),
    (-2.5, 19.75, 0),
    (2.95, 19.75, -25),
    (10, 44.5, 0),
    (0, 0, 25),
    (-10, 0, 0),
    (0, 0, -25),
    (10, 0, 0),
    (10, 22.25, 25),
    (-10, 22.25, 25),
    (-10, 22.25, -25),
    (10, 22.25, -25),
    (6.7, 44.5, -25),
]))
fillet.Radius = 0.5

# Sketch on YZ plane
sketch16 = body.newObject("Sketcher::SketchObject", "Sketch015")
sketch16.AttachmentSupport = (doc.getObject("YZ_Plane"), [""])
sketch16.MapMode = "FlatFace"
sketch16.AttachmentOffset = App.Placement(App.Vector(0, 0, 10), App.Rotation())
sketch16.addGeometry(Part.Circle(App.Vector(38.8, 19.4, 0), App.Vector(0, 0, 1), 3.4), False)
sketch16.addGeometry(Part.Circle(App.Vector(38.8, 6.7, 0), App.Vector(0, 0, 1), 3.4), False)
sketch16.addGeometry(Part.Circle(App.Vector(38.8, -6, 0), App.Vector(0, 0, 1), 3.4), False)
sketch16.addGeometry(Part.Circle(App.Vector(38.8, -18.8, 0), App.Vector(0, 0, 1), 3.4), False)
sketch16.addGeometry(Part.Circle(App.Vector(32.4, 0.3, 0), App.Vector(0, 0, 1), 3.4), False)
sketch16.addGeometry(Part.Circle(App.Vector(26.1, 19.4, 0), App.Vector(0, 0, 1), 3.4), False)
sketch16.addGeometry(Part.Circle(App.Vector(26.1, 6.7, 0), App.Vector(0, 0, 1), 3.4), False)
sketch16.addGeometry(Part.Circle(App.Vector(26.1, -6, 0), App.Vector(0, 0, 1), 3.4), False)
sketch16.addGeometry(Part.Circle(App.Vector(26.1, -18.8, 0), App.Vector(0, 0, 1), 3.4), False)
sketch16.addConstraint(Sketcher.Constraint("Equal", 0, 1))
sketch16.addConstraint(Sketcher.Constraint("Equal", 1, 2))
sketch16.addConstraint(Sketcher.Constraint("Equal", 2, 3))
sketch16.addConstraint(Sketcher.Constraint("Equal", 3, 4))
sketch16.addConstraint(Sketcher.Constraint("Equal", 4, 5))
sketch16.addConstraint(Sketcher.Constraint("Equal", 5, 6))
sketch16.addConstraint(Sketcher.Constraint("Equal", 6, 7))
sketch16.addConstraint(Sketcher.Constraint("Equal", 7, 8))
sketch16.addConstraint(Sketcher.Constraint("Horizontal", 0, 3, 5, 3))
sketch16.addConstraint(Sketcher.Constraint("Horizontal", 1, 3, 6, 3))
sketch16.addConstraint(Sketcher.Constraint("Horizontal", 2, 3, 7, 3))
sketch16.addConstraint(Sketcher.Constraint("Horizontal", 3, 3, 8, 3))
sketch16.addConstraint(Sketcher.Constraint("Vertical", 0, 3, 1, 3))
sketch16.addConstraint(Sketcher.Constraint("Vertical", 1, 3, 2, 3))
sketch16.addConstraint(Sketcher.Constraint("Vertical", 2, 3, 3, 3))
sketch16.addConstraint(Sketcher.Constraint("Vertical", 5, 3, 6, 3))
sketch16.addConstraint(Sketcher.Constraint("Vertical", 6, 3, 7, 3))
sketch16.addConstraint(Sketcher.Constraint("Vertical", 7, 3, 8, 3))
sketch16.addConstraint(Sketcher.Constraint("Diameter", 0, Q("6.7 mm")))
sketch16.addConstraint(Sketcher.Constraint("DistanceY", -1, 1, 4, 3, Q("0.3 mm")))
sketch16.addConstraint(Sketcher.Constraint("DistanceY", 1, 3, 0, 3, Q("12.7 mm")))
sketch16.addConstraint(Sketcher.Constraint("DistanceY", 2, 3, 1, 3, Q("12.7 mm")))
sketch16.addConstraint(Sketcher.Constraint("DistanceY", 3, 3, 2, 3, Q("12.7 mm")))
sketch16.addConstraint(Sketcher.Constraint("DistanceX", 5, 3, 0, 3, Q("12.7 mm")))
sketch16.addConstraint(Sketcher.Constraint("DistanceX", -1, 1, 0, 3, Q("38.76 mm")))
sketch16.addConstraint(Sketcher.Constraint("DistanceY", -1, 1, 0, 3, Q("19.35 mm")))
sketch16.addConstraint(Sketcher.Constraint("DistanceX", -1, 1, 4, 3, Q("32.41 mm")))
pocket14 = body.newObject("PartDesign::Pocket", "Pocket013")
pocket14.Profile = sketch16
pocket14.Length = 0.8

doc.recompute()
